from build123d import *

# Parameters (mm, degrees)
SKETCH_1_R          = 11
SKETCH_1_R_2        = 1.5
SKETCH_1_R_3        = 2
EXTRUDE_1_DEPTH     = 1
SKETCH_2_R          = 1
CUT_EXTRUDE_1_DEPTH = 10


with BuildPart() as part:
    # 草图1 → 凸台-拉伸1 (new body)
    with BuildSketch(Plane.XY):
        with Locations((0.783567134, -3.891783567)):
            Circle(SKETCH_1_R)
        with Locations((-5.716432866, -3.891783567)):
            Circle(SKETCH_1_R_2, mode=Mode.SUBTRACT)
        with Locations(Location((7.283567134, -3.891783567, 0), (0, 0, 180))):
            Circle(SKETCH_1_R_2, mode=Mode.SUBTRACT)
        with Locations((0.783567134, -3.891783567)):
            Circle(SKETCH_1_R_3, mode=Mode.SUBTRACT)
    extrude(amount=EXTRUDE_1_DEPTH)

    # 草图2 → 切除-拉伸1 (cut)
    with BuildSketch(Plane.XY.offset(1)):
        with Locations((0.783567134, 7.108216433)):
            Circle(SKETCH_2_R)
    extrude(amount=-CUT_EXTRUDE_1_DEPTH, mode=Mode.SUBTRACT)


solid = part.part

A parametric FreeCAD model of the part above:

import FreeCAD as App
import Part
import Sketcher
Q = App.Units.Quantity

doc = App.newDocument("Part")
body = doc.addObject("PartDesign::Body", "Body")

sketch1 = doc.addObject("Sketcher::SketchObject", "Sketch")
body.addObject(sketch1)
sketch1.AttachmentSupport = (doc.XY_Plane, [""])
sketch1.MapMode = "FlatFace"
sketch1.addGeometry([
    Part.Circle(App.Vector(0.8, -3.9, 0), App.Vector(0, 0, 1), 11),
    Part.Circle(App.Vector(-5.7, -3.9, 0), App.Vector(0, 0, 1), 1.5),
    Part.Circle(App.Vector(0.8, -3.9, 0), App.Vector(0, 0, 1), 2),
    Part.Circle(App.Vector(7.3, -3.9, 0), App.Vector(0, 0, 1), 1.5),
], False)
sketch1.addConstraint([
    Sketcher.Constraint("Coincident", 2, 3, 0, 3),
    Sketcher.Constraint("Equal", 1, 3),
    Sketcher.Constraint("Horizontal", 0, 3, 1, 3),
    Sketcher.Constraint("Horizontal", 2, 3, 3, 3),
    Sketcher.Constraint("Diameter", 0, Q("22 mm")),
    Sketcher.Constraint("Diameter", 1, Q("3 mm")),
    Sketcher.Constraint("Diameter", 2, Q("4 mm")),
    Sketcher.Constraint("DistanceX", 1, 3, 3, 3, Q("13 mm")),
    Sketcher.Constraint("DistanceX", 1, 3, 0, 3, Q("6.5 mm")),
    Sketcher.Constraint("DistanceX", -1, 1, 0, 3, Q("0.783567 mm")),
    Sketcher.Constraint("DistanceY", 0, 3, -1, 1, Q("3.891784 mm")),
])
pad1 = doc.addObject("PartDesign::Pad", "Pad")
body.addObject(pad1)
pad1.Profile = sketch1
pad1.Length = 1

sketch2 = doc.addObject("Sketcher::SketchObject", "Sketch001")
body.addObject(sketch2)
sketch2.AttachmentSupport = (doc.XY_Plane, [""])
sketch2.MapMode = "FlatFace"
sketch2.AttachmentOffset = App.Placement(App.Vector(0, 0, 1), App.Rotation())
sketch2.addGeometry(Part.Circle(App.Vector(0.8, 7.1, 0), App.Vector(0, 0, 1), 1), False)
sketch2.addConstraint([
    Sketcher.Constraint("Diameter", 0, Q("2 mm")),
    Sketcher.Constraint("DistanceX", -1, 1, 0, 3, Q("0.783567 mm")),
    Sketcher.Constraint("DistanceY", -1, 1, 0, 3, Q("7.108216 mm")),
])
pocket1 = doc.addObject("PartDesign::Pocket", "Pocket")
body.addObject(pocket1)
pocket1.Profile = sketch2
pocket1.Length = 10

doc.recompute()
